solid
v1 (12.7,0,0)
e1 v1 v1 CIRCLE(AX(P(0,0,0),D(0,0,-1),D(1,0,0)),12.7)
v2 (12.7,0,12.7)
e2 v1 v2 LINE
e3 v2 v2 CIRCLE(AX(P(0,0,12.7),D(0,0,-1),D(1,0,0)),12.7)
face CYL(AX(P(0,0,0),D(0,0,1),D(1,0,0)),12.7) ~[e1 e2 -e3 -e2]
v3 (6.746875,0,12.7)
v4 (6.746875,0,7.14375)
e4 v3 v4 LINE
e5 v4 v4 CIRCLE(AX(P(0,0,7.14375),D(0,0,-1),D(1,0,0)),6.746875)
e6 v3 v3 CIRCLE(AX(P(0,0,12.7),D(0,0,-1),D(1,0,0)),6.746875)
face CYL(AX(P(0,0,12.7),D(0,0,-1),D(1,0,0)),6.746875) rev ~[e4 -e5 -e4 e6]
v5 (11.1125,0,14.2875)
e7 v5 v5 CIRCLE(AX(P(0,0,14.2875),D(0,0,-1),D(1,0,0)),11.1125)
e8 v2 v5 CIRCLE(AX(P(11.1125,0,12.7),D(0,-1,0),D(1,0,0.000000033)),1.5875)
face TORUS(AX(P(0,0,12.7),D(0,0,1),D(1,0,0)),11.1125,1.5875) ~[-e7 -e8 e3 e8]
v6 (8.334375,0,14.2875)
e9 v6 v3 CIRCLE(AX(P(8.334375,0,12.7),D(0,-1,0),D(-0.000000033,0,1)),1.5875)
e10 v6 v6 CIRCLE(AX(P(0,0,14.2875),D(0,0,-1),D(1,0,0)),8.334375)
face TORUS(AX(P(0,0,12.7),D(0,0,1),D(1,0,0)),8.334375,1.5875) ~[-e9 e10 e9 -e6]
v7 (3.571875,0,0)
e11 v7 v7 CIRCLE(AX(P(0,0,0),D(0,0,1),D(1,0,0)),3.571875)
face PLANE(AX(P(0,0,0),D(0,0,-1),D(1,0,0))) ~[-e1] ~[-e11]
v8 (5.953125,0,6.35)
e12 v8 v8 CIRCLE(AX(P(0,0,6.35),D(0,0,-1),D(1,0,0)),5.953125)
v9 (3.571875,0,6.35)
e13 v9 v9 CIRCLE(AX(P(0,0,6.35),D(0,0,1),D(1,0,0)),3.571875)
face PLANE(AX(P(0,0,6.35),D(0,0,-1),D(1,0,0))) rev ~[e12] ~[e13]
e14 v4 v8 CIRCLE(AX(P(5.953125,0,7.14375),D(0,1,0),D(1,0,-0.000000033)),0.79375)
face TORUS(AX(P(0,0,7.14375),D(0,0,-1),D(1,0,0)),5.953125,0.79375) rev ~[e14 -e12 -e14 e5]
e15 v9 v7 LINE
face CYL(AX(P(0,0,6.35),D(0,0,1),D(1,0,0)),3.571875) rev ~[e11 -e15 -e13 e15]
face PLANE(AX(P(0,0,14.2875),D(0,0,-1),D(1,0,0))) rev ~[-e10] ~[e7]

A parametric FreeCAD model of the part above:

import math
import FreeCAD as App
import Part
import Sketcher
Q = App.Units.Quantity

doc = App.newDocument("Part")
body = doc.addObject("PartDesign::Body", "Body")

# Sketch on XZ plane
sketch1 = body.newObject("Sketcher::SketchObject", "Sketch")
sketch1.AttachmentSupport = (doc.getObject("XZ_Plane"), [""])
sketch1.MapMode = "FlatFace"
sketch1.addGeometry([
    Part.LineSegment(App.Vector(5.953125, 6.35, 0), App.Vector(0, 6.35, 0)),  # 0
    Part.LineSegment(App.Vector(0, 6.35, 0), App.Vector(0, 0, 0)),  # 1
    Part.LineSegment(App.Vector(0, 0, 0), App.Vector(12.7, 0, 0)),  # 2
    Part.LineSegment(App.Vector(12.7, 0, 0), App.Vector(12.7, 12.7, 0)),  # 3
    Part.ArcOfCircle(Part.Circle(App.Vector(11.1125, 12.7, 0), App.Vector(0, 0, 1), 1.5875), math.radians(0.000002), math.radians(89.999998)),  # 4
    Part.LineSegment(App.Vector(11.1125, 14.2875, 0), App.Vector(8.334375, 14.2875, 0)),  # 5
    Part.ArcOfCircle(Part.Circle(App.Vector(8.334375, 12.7, 0), App.Vector(0, 0, 1), 1.5875), math.radians(90.000002), math.radians(179.999998)),  # 6
    Part.LineSegment(App.Vector(6.746875, 12.7, 0), App.Vector(6.746875, 7.14375, 0)),  # 7
    Part.ArcOfCircle(Part.Circle(App.Vector(5.953125, 7.14375, 0), App.Vector(0, 0, 1), 0.79375), math.radians(-89.999998), math.radians(-0.000002)),  # 8
], False)
sketch1.addConstraint([
    Sketcher.Constraint("Coincident", 0, 2, 1, 1),
    Sketcher.Constraint("Coincident", 1, 2, 2, 1),
    Sketcher.Constraint("Coincident", 2, 2, 3, 1),
    Sketcher.Constraint("Tangent", 3, 2, 4, 1),
    Sketcher.Constraint("Tangent", 4, 2, 5, 1),
    Sketcher.Constraint("Tangent", 5, 2, 6, 1),
    Sketcher.Constraint("Tangent", 6, 2, 7, 1),
    Sketcher.Constraint("Tangent", 7, 2, 8, 2),
    Sketcher.Constraint("Tangent", 8, 1, 0, 1),
    Sketcher.Constraint("Horizontal", 0),
    Sketcher.Constraint("Vertical", 1),
    Sketcher.Constraint("Horizontal", 2),
    Sketcher.Constraint("Vertical", 3),
    Sketcher.Constraint("Horizontal", 5),
    Sketcher.Constraint("Vertical", 7),
    Sketcher.Constraint("Coincident", 1, 2, -1, 1),
    Sketcher.Constraint("Equal", 4, 6),
    Sketcher.Constraint("Equal", 2, 3),
    Sketcher.Constraint("DistanceX", 2, 1, 2, 2, Q("0.5 in")),
    Sketcher.Constraint("Radius", 4, Q("0.0625 in")),
    Sketcher.Constraint("Radius", 8, Q("0.03125 in")),
    Sketcher.Constraint("DistanceY", 1, 2, 1, 1, Q("0.25 in")),
    Sketcher.Constraint("DistanceX", 0, 2, 0, 1, Q("0.234375 in")),
])
revolution = body.newObject("PartDesign::Revolution", "Revolution")
revolution.Profile = sketch1
revolution.ReferenceAxis = (sketch1, ["V_Axis"])
revolution.Angle = 360

# Sketch on XY plane
sketch2 = body.newObject("Sketcher::SketchObject", "Sketch001")
sketch2.AttachmentSupport = (doc.getObject("XY_Plane"), [""])
sketch2.MapMode = "FlatFace"
sketch2.AttachmentOffset = App.Placement(App.Vector(0, 0, 0.25 * 25.4), App.Rotation())
sketch2.addGeometry(Part.Circle(App.Vector(0, 0, 0), App.Vector(0, 0, 1), 3.571875), False)
sketch2.addConstraint([
    Sketcher.Constraint("Coincident", 0, 3, -1, 1),
    Sketcher.Constraint("Diameter", 0, Q("0.28125 in")),
])
pocket1 = body.newObject("PartDesign::Pocket", "Pocket")
pocket1.Profile = sketch2
pocket1.Type = "ThroughAll"

doc.recompute()
